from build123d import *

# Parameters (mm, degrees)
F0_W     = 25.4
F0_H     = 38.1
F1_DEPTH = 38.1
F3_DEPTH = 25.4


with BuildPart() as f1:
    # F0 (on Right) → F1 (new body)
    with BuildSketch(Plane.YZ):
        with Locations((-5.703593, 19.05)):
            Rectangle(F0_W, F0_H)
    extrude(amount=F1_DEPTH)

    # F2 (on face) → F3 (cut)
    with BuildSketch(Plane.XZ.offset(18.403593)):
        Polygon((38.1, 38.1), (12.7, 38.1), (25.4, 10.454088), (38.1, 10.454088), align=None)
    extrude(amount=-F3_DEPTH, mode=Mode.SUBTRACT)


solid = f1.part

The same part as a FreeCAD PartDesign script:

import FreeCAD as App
import Part
import Sketcher

V = App.Vector
Q = App.Units.Quantity

doc = App.newDocument("Part")
body = doc.addObject("PartDesign::Body", "Body")

# Sketch on YZ plane
sketch1 = doc.addObject("Sketcher::SketchObject", "Sketch")
body.addObject(sketch1)
sketch1.AttachmentSupport = (doc.YZ_Plane, [""])
sketch1.MapMode = "FlatFace"
sketch1.addGeometry([
    Part.LineSegment(V(-18, 38, 0), V(-18, 0, 0)),
    Part.LineSegment(V(-18, 0, 0), V(7, 0, 0)),
    Part.LineSegment(V(7, 0, 0), V(7, 38, 0)),
    Part.LineSegment(V(7, 38, 0), V(-18, 38, 0)),
], False)
sketch1.addConstraint([
    Sketcher.Constraint("Coincident", 0, 2, 1, 1),
    Sketcher.Constraint("Coincident", 1, 2, 2, 1),
    Sketcher.Constraint("Coincident", 2, 2, 3, 1),
    Sketcher.Constraint("Coincident", 3, 2, 0, 1),
    Sketcher.Constraint("Vertical", 0),
    Sketcher.Constraint("Horizontal", 1),
    Sketcher.Constraint("Vertical", 2),
    Sketcher.Constraint("Horizontal", 3),
    Sketcher.Constraint("PointOnObject", 0, 2, -1),
    Sketcher.Constraint("DistanceX", 1, 1, 1, 2, Q("1 in")),
    Sketcher.Constraint("DistanceY", 0, 2, 0, 1, Q("1.5 in")),
    Sketcher.Constraint("DistanceX", 0, 2, -1, 1, 18.403593),
])
pad1 = doc.addObject("PartDesign::Pad", "Pad")
body.addObject(pad1)
pad1.Profile = sketch1
pad1.Length = Q("1.5 in")

# Sketch on XZ plane
sketch2 = doc.addObject("Sketcher::SketchObject", "Sketch001")
body.addObject(sketch2)
sketch2.AttachmentSupport = (doc.XZ_Plane, [""])
sketch2.MapMode = "FlatFace"
sketch2.AttachmentOffset = App.Placement(V(0, 0, 18.403593), App.Rotation())
sketch2.addGeometry([
    Part.LineSegment(V(38, 38, 0), V(13, 38, 0)),
    Part.LineSegment(V(13, 38, 0), V(25, 10, 0)),
    Part.LineSegment(V(25, 10, 0), V(38, 10, 0)),
    Part.LineSegment(V(38, 10, 0), V(38, 38, 0)),
], False)
sketch2.addConstraint([
    Sketcher.Constraint("Coincident", 0, 2, 1, 1),
    Sketcher.Constraint("Coincident", 1, 2, 2, 1),
    Sketcher.Constraint("Coincident", 2, 2, 3, 1),
    Sketcher.Constraint("Coincident", 3, 2, 0, 1),
    Sketcher.Constraint("Horizontal", 0),
    Sketcher.Constraint("Horizontal", 2),
    Sketcher.Constraint("Vertical", 3),
    Sketcher.Constraint("DistanceX", 0, 2, 0, 1, Q("1 in")),
    Sketcher.Constraint("DistanceX", 2, 1, 2, 2, Q("0.5 in")),
    Sketcher.Constraint("DistanceX", -1, 1, 1, 2, Q("1 in")),
    Sketcher.Constraint("DistanceY", -1, 1, 0, 2, Q("1.5 in")),
    Sketcher.Constraint("DistanceY", 3, 1, 3, 2, 27.645912),
])
pocket1 = doc.addObject("PartDesign::Pocket", "Pocket")
body.addObject(pocket1)
pocket1.Profile = sketch2
pocket1.Length = Q("1 in")

doc.recompute()
